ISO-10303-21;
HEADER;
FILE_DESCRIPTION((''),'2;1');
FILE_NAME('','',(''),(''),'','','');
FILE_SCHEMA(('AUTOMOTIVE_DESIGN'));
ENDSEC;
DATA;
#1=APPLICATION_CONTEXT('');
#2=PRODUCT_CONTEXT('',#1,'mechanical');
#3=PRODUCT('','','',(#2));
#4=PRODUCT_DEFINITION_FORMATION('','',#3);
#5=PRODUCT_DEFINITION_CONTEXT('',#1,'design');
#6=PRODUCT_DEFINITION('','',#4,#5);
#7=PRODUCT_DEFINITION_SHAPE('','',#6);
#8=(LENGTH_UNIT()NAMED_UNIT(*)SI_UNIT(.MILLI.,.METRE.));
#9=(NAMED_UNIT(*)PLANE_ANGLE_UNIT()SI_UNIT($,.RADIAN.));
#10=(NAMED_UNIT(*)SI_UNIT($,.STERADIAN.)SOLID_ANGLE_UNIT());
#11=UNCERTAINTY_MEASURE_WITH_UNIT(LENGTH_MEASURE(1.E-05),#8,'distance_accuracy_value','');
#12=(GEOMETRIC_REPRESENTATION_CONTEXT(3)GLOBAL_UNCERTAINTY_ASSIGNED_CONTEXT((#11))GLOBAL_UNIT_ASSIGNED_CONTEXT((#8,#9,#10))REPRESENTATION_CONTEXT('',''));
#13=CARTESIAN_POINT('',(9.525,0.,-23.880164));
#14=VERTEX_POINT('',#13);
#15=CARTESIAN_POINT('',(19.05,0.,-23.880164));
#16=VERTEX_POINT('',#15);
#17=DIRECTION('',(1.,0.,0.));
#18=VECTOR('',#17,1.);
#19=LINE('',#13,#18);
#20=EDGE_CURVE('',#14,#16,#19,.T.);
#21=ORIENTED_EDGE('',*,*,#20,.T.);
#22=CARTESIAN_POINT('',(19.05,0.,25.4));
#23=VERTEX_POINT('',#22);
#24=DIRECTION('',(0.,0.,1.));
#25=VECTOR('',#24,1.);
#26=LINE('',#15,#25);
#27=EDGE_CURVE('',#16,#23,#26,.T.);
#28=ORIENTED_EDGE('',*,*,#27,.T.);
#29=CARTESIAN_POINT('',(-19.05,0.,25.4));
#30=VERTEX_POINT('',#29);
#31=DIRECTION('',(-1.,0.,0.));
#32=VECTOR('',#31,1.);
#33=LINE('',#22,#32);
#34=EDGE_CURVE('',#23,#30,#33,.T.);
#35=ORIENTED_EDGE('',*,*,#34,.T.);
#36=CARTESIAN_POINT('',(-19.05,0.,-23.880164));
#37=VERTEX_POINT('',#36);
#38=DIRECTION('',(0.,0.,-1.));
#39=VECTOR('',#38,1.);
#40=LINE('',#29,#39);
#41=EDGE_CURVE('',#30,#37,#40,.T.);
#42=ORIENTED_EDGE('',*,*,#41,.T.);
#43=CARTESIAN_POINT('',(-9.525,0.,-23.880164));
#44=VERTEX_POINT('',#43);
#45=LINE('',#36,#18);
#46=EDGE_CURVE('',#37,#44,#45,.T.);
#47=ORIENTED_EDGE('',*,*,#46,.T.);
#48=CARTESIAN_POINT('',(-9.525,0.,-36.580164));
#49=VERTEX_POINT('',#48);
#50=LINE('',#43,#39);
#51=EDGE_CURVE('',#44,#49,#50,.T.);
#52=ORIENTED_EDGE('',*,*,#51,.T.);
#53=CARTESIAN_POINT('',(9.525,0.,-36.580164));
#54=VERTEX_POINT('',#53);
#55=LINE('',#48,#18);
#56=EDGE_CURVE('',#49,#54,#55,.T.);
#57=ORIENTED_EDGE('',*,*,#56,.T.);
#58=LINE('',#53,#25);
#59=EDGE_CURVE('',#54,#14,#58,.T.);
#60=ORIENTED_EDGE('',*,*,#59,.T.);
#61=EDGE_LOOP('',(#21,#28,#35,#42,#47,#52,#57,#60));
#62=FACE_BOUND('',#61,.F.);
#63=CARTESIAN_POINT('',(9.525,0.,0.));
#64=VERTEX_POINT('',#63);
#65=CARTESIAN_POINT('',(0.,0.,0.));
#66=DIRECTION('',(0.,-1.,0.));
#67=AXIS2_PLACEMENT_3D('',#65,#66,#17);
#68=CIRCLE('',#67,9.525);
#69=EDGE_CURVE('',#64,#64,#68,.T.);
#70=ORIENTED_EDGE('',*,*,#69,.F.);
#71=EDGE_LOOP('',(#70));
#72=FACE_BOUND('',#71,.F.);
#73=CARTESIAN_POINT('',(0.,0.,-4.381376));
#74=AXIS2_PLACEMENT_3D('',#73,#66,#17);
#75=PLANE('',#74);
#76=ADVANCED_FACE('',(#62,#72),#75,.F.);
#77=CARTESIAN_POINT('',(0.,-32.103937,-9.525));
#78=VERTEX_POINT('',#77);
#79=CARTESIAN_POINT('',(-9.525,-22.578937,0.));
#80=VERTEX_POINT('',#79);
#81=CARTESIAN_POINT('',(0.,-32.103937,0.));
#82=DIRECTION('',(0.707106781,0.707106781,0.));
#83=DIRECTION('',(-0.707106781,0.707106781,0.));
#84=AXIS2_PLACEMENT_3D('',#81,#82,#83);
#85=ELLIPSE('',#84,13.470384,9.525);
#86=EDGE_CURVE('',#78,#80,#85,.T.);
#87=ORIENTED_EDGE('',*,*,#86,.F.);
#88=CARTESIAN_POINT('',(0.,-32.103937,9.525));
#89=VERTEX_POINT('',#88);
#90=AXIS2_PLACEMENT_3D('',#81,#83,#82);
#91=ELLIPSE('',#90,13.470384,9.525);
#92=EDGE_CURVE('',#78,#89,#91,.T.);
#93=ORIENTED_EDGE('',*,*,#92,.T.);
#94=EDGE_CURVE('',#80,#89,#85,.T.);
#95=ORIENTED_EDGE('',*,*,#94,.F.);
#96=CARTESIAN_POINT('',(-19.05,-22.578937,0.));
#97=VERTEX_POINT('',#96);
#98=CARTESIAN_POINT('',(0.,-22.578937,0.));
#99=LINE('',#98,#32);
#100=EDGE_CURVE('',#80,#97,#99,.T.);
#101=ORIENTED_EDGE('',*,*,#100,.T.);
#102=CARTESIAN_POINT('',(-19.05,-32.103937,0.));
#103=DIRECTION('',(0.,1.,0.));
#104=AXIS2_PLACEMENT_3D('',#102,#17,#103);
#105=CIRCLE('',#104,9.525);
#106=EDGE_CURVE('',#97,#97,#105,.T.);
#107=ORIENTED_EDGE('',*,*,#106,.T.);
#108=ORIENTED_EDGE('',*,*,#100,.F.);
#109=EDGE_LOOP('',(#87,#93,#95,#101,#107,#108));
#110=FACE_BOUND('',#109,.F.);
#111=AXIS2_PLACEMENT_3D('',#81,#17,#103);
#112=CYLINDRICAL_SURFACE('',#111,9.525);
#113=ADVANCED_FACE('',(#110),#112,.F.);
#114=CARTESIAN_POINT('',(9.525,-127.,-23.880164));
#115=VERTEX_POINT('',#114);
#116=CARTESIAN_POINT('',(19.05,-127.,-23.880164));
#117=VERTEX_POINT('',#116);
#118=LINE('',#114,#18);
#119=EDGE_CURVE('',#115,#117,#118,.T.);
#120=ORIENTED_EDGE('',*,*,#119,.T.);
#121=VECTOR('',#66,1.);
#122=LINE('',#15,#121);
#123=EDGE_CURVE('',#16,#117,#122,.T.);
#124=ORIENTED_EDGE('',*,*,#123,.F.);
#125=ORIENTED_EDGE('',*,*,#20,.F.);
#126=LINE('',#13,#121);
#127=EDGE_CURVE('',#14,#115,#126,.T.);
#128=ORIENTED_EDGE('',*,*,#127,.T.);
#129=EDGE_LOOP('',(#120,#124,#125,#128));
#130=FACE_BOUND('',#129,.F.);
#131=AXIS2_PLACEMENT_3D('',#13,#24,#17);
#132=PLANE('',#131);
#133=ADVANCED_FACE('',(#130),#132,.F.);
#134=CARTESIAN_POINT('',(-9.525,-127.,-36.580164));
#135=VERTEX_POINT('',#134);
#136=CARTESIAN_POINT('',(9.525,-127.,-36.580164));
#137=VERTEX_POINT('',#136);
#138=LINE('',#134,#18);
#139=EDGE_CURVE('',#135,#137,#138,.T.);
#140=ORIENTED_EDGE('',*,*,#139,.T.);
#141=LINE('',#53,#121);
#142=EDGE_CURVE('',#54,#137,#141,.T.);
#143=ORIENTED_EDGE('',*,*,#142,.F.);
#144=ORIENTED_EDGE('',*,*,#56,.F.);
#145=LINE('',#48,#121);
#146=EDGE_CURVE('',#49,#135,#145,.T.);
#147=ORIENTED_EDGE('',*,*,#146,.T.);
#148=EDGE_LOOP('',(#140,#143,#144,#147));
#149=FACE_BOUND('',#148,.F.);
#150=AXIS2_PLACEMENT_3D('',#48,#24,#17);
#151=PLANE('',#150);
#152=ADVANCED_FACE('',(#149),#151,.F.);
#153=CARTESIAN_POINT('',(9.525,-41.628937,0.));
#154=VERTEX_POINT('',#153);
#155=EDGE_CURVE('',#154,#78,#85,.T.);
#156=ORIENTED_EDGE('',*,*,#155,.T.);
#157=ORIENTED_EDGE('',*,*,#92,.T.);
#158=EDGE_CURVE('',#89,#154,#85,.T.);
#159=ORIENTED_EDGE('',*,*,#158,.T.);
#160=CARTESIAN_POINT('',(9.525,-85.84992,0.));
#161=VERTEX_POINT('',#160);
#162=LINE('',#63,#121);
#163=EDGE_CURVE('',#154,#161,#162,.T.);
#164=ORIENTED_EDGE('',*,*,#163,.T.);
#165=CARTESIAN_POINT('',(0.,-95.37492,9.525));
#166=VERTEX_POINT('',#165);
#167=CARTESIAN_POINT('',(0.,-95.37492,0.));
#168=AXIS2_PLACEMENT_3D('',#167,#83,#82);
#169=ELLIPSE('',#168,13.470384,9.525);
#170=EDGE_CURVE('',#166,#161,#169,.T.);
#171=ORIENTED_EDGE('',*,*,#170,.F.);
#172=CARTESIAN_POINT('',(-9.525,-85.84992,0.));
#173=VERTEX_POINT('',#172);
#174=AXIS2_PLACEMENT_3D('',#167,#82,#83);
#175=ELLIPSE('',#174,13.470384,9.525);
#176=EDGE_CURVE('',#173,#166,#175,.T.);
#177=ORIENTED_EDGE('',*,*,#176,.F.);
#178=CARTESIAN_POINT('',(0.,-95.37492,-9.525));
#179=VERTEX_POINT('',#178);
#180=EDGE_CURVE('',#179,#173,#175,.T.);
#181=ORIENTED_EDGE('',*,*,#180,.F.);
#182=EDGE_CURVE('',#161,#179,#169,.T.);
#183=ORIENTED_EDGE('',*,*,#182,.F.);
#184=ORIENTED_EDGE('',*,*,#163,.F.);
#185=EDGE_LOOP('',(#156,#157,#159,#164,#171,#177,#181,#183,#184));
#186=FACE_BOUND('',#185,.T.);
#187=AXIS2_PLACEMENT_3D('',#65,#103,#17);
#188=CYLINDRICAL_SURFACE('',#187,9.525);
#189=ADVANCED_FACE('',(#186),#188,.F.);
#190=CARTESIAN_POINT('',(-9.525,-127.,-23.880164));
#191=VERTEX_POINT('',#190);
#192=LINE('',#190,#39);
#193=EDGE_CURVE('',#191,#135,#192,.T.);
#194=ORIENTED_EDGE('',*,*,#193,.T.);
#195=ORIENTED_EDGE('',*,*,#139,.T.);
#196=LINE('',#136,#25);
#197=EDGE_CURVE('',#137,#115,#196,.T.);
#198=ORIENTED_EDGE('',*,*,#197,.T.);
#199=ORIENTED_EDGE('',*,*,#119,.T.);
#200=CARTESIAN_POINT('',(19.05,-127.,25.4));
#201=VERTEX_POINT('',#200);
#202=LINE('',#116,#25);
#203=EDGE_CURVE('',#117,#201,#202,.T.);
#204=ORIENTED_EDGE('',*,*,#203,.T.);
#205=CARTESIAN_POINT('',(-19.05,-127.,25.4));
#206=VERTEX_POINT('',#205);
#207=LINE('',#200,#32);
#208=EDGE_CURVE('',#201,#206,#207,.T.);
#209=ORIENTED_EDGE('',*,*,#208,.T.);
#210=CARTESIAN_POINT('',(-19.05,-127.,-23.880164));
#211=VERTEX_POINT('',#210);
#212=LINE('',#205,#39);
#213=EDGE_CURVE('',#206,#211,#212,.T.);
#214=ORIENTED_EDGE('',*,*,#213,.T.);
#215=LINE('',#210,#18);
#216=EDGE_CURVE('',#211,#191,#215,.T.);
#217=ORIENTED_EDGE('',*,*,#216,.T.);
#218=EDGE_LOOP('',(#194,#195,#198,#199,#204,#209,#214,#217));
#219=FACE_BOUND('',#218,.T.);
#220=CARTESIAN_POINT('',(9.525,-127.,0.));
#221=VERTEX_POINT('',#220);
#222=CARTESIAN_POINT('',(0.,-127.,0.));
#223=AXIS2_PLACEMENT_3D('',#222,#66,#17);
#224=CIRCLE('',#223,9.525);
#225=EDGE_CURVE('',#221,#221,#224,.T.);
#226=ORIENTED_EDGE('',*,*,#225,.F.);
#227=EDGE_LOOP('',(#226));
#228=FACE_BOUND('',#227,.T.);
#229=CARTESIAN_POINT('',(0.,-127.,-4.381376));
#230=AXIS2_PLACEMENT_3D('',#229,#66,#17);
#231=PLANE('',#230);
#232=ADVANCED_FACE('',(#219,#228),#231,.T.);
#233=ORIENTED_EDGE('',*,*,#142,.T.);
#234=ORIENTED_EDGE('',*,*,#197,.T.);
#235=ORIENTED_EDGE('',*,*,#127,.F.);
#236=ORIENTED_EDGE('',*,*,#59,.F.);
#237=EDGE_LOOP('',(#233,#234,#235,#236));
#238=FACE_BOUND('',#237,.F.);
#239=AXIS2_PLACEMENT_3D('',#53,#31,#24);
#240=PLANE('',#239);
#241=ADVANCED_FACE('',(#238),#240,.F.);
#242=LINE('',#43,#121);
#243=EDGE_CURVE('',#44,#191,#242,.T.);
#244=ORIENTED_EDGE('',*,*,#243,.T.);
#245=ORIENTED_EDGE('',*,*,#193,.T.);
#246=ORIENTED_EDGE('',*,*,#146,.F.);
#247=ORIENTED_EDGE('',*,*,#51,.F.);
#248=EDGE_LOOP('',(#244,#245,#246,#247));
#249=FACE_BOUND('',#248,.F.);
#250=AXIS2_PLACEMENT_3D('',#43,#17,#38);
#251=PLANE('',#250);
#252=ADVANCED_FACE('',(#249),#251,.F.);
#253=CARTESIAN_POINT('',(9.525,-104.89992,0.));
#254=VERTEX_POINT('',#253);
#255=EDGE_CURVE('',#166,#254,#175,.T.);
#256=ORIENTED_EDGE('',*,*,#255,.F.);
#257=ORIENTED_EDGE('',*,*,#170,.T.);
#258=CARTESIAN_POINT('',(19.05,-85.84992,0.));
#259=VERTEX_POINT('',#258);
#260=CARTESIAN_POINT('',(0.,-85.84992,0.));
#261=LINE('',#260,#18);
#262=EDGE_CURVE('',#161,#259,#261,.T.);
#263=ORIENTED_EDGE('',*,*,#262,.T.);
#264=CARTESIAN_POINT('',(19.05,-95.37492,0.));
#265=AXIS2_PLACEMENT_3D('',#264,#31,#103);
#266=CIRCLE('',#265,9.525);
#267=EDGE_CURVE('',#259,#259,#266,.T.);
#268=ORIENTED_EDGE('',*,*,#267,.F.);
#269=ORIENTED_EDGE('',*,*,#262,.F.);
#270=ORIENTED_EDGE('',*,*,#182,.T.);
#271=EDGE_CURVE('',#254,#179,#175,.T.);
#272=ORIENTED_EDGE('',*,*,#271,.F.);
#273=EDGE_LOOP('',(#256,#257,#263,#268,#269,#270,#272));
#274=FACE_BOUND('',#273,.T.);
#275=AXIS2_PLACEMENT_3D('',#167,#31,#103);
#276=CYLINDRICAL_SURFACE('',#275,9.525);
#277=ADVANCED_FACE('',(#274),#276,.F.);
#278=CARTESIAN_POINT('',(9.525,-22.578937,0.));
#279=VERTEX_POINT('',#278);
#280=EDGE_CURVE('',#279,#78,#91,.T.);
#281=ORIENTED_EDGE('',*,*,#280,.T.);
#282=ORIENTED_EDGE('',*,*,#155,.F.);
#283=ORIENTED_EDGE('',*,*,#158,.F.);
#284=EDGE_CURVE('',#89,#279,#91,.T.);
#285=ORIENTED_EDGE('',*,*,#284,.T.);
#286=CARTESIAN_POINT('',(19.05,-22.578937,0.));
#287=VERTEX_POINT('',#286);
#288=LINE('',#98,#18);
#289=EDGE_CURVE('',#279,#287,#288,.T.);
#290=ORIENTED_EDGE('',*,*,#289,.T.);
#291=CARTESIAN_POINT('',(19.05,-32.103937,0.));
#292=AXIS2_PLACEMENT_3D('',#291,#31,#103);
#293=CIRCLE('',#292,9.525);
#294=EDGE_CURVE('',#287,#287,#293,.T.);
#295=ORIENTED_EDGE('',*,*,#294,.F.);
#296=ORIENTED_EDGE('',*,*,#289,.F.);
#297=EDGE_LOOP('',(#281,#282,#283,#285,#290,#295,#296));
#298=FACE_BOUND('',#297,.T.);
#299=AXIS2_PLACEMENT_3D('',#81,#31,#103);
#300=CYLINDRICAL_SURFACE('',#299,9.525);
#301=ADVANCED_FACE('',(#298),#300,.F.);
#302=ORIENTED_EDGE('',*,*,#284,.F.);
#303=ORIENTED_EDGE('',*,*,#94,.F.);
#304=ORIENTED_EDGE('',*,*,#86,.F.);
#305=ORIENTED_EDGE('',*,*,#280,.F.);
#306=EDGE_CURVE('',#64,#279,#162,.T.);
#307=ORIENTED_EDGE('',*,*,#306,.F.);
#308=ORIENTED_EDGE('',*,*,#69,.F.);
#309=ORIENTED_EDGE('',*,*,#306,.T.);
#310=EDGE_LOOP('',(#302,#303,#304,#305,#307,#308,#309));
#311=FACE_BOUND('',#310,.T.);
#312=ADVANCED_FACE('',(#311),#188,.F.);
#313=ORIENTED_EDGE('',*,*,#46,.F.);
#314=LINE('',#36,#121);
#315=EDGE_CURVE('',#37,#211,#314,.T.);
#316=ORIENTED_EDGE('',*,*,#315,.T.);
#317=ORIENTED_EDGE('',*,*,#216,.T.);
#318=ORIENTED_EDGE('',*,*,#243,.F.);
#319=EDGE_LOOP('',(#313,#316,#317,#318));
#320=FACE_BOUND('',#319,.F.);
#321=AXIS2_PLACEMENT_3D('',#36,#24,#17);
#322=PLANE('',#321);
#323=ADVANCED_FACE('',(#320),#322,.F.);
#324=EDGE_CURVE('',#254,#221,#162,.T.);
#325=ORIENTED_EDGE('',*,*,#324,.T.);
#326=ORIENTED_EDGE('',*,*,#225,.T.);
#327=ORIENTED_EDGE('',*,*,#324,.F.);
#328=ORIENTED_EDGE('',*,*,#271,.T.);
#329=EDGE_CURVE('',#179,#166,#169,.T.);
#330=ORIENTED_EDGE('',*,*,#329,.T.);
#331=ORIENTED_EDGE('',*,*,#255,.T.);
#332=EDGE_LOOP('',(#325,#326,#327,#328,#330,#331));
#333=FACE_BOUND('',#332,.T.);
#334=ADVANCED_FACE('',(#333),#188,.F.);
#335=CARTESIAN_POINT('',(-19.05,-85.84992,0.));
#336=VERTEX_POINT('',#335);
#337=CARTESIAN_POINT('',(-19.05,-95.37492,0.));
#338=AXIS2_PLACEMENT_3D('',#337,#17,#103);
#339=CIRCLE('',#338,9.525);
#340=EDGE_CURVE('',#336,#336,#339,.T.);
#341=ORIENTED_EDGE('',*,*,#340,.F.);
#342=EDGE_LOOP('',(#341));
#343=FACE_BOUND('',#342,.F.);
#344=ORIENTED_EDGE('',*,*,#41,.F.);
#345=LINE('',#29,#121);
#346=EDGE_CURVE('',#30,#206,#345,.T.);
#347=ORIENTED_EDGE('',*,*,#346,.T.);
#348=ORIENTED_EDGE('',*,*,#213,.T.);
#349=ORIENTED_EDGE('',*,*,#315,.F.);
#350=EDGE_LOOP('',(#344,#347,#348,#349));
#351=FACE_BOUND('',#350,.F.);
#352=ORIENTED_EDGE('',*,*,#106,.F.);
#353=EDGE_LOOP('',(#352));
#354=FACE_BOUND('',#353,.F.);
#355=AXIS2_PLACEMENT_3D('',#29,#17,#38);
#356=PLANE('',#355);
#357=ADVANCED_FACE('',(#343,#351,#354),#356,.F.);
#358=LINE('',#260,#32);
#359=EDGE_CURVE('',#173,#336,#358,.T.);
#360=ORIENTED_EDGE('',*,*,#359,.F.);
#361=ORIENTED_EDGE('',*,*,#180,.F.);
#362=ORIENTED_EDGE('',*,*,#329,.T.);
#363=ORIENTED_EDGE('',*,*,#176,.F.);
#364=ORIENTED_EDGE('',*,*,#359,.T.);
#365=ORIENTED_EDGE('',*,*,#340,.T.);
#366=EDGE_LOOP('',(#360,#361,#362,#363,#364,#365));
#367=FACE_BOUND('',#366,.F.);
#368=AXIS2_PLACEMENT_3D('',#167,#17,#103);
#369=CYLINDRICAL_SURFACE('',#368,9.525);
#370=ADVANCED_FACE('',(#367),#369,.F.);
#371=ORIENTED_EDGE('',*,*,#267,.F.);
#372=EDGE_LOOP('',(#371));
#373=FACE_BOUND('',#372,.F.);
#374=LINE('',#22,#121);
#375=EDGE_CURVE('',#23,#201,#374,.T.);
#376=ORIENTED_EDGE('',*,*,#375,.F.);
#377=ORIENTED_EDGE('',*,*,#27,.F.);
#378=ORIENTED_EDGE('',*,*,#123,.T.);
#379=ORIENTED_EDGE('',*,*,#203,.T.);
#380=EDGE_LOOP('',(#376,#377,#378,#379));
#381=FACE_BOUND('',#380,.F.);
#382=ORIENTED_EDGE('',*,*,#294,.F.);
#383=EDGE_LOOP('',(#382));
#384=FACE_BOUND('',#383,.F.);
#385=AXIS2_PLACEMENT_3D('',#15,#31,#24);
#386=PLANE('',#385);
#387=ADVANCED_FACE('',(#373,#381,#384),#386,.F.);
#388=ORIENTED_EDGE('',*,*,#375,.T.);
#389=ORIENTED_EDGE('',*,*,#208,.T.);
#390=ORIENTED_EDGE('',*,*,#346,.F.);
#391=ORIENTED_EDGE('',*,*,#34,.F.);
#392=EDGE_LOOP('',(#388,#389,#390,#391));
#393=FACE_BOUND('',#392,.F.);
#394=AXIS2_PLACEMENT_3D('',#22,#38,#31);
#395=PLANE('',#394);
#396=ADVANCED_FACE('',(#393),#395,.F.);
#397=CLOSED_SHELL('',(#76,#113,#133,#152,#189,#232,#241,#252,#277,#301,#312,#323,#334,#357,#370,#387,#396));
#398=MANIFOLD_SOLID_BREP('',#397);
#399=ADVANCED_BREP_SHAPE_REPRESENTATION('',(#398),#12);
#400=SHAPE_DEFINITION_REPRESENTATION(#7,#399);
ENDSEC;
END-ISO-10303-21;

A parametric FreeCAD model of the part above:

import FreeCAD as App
import Part
import Sketcher

V = App.Vector
Q = App.Units.Quantity

doc = App.newDocument("Part")
body = doc.addObject("PartDesign::Body", "Body")

# Sketch on XZ plane
sketch1 = doc.addObject("Sketcher::SketchObject", "Sketch")
body.addObject(sketch1)
sketch1.AttachmentSupport = (doc.XZ_Plane, [""])
sketch1.MapMode = "FlatFace"
sketch1.addGeometry([
    Part.LineSegment(V(-10, -24, 0), V(-10, -37, 0)),  # 0
    Part.LineSegment(V(-10, -37, 0), V(10, -37, 0)),  # 1
    Part.LineSegment(V(10, -37, 0), V(10, -24, 0)),  # 2
    Part.LineSegment(V(10, -24, 0), V(19, -24, 0)),  # 3
    Part.LineSegment(V(19, -24, 0), V(19, 25, 0)),  # 4
    Part.LineSegment(V(19, 25, 0), V(-19, 25, 0)),  # 5
    Part.LineSegment(V(-19, 25, 0), V(-19, -24, 0)),  # 6
    Part.LineSegment(V(-19, -24, 0), V(-10, -24, 0)),  # 7
    Part.Circle(V(0, 0, 0), V(0, 0, 1), 10),  # 8
], False)
sketch1.addConstraint([
    Sketcher.Constraint("Coincident", 0, 2, 1, 1),
    Sketcher.Constraint("Coincident", 1, 2, 2, 1),
    Sketcher.Constraint("Coincident", 2, 2, 3, 1),
    Sketcher.Constraint("Coincident", 3, 2, 4, 1),
    Sketcher.Constraint("Coincident", 4, 2, 5, 1),
    Sketcher.Constraint("Coincident", 5, 2, 6, 1),
    Sketcher.Constraint("Coincident", 6, 2, 7, 1),
    Sketcher.Constraint("Coincident", 7, 2, 0, 1),
    Sketcher.Constraint("Vertical", 0),
    Sketcher.Constraint("Horizontal", 1),
    Sketcher.Constraint("Vertical", 2),
    Sketcher.Constraint("Horizontal", 3),
    Sketcher.Constraint("Vertical", 4),
    Sketcher.Constraint("Horizontal", 5),
    Sketcher.Constraint("Vertical", 6),
    Sketcher.Constraint("Horizontal", 7),
    Sketcher.Constraint("Coincident", 8, 3, -1, 1),
    Sketcher.Constraint("Symmetric", 3, 2, 6, 2, -2),
    Sketcher.Constraint("Equal", 3, 7),
    Sketcher.Constraint("Diameter", 8, Q("0.75 in")),
    Sketcher.Constraint("DistanceX", 5, 2, 5, 1, Q("1.5 in")),
    Sketcher.Constraint("DistanceY", 0, 2, 0, 1, Q("0.5 in")),
    Sketcher.Constraint("DistanceY", -1, 1, 4, 2, Q("1 in")),
    Sketcher.Constraint("DistanceX", 1, 1, 1, 2, Q("0.75 in")),
    Sketcher.Constraint("DistanceY", 4, 1, 4, 2, Q("49.280164 mm")),
])
pad1 = doc.addObject("PartDesign::Pad", "Pad")
body.addObject(pad1)
pad1.Profile = sketch1
pad1.Length = Q("5 in")

# Sketch on YZ plane
sketch2 = doc.addObject("Sketcher::SketchObject", "Sketch001")
body.addObject(sketch2)
sketch2.AttachmentSupport = (doc.YZ_Plane, [""])
sketch2.MapMode = "FlatFace"
sketch2.addGeometry([
    Part.Circle(V(-32, 0, 0), V(0, 0, 1), 10),
    Part.Circle(V(-95, 0, 0), V(0, 0, 1), 10),
], False)
sketch2.addConstraint([
    Sketcher.Constraint("Equal", 0, 1),
    Sketcher.Constraint("PointOnObject", 0, 3, -1),
    Sketcher.Constraint("PointOnObject", 1, 3, -1),
    Sketcher.Constraint("Diameter", 0, Q("0.75 in")),
    Sketcher.Constraint("DistanceX", 1, 3, -1, 1, Q("95.37492 mm")),
    Sketcher.Constraint("DistanceX", 0, 3, -1, 1, Q("32.103937 mm")),
])
pocket1 = doc.addObject("PartDesign::Pocket", "Pocket")
body.addObject(pocket1)
pocket1.Profile = sketch2
pocket1.Type = "ThroughAll"
pocket1.Midplane = True

doc.recompute()
